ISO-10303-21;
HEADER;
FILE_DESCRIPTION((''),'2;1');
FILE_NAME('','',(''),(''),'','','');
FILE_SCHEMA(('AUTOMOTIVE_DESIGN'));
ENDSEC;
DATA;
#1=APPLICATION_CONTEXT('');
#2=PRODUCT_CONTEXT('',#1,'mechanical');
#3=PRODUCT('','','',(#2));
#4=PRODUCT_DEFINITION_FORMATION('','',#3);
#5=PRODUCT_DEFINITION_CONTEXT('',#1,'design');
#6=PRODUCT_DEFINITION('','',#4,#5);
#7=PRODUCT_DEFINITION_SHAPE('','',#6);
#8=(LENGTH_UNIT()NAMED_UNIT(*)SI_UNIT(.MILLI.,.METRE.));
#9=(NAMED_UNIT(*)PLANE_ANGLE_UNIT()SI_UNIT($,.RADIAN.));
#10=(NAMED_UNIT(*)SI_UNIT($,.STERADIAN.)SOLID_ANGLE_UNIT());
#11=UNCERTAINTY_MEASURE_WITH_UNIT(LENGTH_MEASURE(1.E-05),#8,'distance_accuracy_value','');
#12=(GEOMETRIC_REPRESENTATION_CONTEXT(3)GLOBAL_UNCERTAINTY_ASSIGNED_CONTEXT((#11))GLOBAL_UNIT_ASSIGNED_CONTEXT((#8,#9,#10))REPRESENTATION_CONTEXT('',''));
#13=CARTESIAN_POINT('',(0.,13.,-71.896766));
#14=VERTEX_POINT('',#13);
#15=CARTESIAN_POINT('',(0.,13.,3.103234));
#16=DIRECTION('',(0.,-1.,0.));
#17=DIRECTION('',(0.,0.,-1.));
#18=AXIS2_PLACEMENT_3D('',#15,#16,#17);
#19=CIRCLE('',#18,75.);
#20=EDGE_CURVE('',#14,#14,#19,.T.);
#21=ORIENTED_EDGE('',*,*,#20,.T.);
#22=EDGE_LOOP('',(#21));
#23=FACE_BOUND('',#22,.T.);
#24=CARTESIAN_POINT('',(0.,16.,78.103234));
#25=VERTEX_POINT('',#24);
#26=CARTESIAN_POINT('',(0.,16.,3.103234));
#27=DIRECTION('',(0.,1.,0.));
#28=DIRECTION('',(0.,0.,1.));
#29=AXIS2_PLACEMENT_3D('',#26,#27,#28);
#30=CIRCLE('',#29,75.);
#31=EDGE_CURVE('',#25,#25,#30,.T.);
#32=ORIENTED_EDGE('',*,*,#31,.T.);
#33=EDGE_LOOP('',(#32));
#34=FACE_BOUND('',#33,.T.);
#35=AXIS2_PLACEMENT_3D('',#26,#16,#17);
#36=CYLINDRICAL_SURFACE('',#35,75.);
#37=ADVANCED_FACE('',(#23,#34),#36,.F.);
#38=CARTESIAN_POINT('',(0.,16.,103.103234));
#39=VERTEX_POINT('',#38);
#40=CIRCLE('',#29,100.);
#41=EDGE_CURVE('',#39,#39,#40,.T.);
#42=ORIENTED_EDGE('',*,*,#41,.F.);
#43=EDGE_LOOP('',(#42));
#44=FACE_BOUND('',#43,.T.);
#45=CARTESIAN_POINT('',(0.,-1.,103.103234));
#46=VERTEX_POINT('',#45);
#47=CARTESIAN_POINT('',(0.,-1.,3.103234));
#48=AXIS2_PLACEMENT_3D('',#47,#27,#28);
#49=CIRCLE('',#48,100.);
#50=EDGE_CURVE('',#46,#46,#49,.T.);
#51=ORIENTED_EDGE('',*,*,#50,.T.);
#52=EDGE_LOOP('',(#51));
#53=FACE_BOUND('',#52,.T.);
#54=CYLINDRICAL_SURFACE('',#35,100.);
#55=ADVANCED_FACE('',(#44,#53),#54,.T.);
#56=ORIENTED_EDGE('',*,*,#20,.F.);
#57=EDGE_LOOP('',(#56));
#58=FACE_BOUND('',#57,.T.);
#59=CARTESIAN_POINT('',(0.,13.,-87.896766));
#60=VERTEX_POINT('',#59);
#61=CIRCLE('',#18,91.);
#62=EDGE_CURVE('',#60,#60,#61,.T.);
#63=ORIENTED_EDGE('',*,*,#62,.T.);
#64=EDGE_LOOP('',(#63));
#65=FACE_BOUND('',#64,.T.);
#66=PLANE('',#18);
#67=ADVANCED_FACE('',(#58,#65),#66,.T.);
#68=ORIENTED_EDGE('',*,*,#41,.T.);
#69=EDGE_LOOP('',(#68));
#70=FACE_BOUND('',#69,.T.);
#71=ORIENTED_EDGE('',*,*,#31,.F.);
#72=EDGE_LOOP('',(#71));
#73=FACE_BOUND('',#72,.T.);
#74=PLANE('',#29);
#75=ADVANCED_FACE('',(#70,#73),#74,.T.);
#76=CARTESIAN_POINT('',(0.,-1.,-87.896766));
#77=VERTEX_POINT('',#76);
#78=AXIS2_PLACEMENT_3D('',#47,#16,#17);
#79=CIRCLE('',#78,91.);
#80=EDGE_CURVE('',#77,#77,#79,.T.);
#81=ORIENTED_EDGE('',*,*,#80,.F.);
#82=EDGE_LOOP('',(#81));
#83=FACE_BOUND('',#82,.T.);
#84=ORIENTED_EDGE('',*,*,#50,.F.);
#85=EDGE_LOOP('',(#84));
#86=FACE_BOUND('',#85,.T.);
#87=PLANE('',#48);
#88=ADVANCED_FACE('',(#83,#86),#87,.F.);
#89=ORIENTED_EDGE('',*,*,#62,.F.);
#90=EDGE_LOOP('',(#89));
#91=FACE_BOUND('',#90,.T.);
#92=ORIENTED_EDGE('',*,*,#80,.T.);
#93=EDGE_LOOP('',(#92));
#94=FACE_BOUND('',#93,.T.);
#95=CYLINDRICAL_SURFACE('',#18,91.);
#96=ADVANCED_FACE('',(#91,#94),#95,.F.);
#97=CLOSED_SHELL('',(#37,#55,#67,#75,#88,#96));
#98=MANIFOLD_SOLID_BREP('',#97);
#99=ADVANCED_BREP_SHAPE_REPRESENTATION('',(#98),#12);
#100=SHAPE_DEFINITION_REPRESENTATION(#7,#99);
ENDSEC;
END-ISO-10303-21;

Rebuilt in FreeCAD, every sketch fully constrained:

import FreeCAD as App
import Part
import Sketcher

V = App.Vector

doc = App.newDocument("Part")
body = doc.addObject("PartDesign::Body", "Body")

sketch1 = body.newObject("Sketcher::SketchObject", "Sketch")
sketch1.AttachmentSupport = (doc.getObject("XZ_Plane"), [""])
sketch1.MapMode = "FlatFace"
sketch1.AttachmentOffset = App.Placement(V(0, 0, 1), App.Rotation())
sketch1.addGeometry(Part.Circle(V(0, 3, 0), V(0, 0, 1), 100), False)
sketch1.addGeometry(Part.Circle(V(0, 3, 0), V(0, 0, 1), 75), False)
sketch1.addConstraint(Sketcher.Constraint("Coincident", 1, 3, 0, 3))
sketch1.addConstraint(Sketcher.Constraint("PointOnObject", 0, 3, -2))
sketch1.addConstraint(Sketcher.Constraint("Diameter", 0, 200.0))
sketch1.addConstraint(Sketcher.Constraint("Diameter", 1, 150.0))
sketch1.addConstraint(Sketcher.Constraint("DistanceY", -1, 1, 0, 3, 3.103234))
pad1 = body.newObject("PartDesign::Pad", "Pad")
pad1.Profile = sketch1
pad1.Length = 17
pad1.Reversed = True

sketch2 = body.newObject("Sketcher::SketchObject", "Sketch001")
sketch2.AttachmentSupport = (doc.getObject("XZ_Plane"), [""])
sketch2.MapMode = "FlatFace"
sketch2.AttachmentOffset = App.Placement(V(0, 0, 1), App.Rotation())
sketch2.addGeometry(Part.Circle(V(0, 3, 0), V(0, 0, 1), 91), False)
sketch2.addConstraint(Sketcher.Constraint("PointOnObject", 0, 3, -2))
sketch2.addConstraint(Sketcher.Constraint("Diameter", 0, 182.0))
sketch2.addConstraint(Sketcher.Constraint("DistanceY", -1, 1, 0, 3, 3.103234))
pocket1 = body.newObject("PartDesign::Pocket", "Pocket")
pocket1.Profile = sketch2
pocket1.Length = 14

doc.recompute()
